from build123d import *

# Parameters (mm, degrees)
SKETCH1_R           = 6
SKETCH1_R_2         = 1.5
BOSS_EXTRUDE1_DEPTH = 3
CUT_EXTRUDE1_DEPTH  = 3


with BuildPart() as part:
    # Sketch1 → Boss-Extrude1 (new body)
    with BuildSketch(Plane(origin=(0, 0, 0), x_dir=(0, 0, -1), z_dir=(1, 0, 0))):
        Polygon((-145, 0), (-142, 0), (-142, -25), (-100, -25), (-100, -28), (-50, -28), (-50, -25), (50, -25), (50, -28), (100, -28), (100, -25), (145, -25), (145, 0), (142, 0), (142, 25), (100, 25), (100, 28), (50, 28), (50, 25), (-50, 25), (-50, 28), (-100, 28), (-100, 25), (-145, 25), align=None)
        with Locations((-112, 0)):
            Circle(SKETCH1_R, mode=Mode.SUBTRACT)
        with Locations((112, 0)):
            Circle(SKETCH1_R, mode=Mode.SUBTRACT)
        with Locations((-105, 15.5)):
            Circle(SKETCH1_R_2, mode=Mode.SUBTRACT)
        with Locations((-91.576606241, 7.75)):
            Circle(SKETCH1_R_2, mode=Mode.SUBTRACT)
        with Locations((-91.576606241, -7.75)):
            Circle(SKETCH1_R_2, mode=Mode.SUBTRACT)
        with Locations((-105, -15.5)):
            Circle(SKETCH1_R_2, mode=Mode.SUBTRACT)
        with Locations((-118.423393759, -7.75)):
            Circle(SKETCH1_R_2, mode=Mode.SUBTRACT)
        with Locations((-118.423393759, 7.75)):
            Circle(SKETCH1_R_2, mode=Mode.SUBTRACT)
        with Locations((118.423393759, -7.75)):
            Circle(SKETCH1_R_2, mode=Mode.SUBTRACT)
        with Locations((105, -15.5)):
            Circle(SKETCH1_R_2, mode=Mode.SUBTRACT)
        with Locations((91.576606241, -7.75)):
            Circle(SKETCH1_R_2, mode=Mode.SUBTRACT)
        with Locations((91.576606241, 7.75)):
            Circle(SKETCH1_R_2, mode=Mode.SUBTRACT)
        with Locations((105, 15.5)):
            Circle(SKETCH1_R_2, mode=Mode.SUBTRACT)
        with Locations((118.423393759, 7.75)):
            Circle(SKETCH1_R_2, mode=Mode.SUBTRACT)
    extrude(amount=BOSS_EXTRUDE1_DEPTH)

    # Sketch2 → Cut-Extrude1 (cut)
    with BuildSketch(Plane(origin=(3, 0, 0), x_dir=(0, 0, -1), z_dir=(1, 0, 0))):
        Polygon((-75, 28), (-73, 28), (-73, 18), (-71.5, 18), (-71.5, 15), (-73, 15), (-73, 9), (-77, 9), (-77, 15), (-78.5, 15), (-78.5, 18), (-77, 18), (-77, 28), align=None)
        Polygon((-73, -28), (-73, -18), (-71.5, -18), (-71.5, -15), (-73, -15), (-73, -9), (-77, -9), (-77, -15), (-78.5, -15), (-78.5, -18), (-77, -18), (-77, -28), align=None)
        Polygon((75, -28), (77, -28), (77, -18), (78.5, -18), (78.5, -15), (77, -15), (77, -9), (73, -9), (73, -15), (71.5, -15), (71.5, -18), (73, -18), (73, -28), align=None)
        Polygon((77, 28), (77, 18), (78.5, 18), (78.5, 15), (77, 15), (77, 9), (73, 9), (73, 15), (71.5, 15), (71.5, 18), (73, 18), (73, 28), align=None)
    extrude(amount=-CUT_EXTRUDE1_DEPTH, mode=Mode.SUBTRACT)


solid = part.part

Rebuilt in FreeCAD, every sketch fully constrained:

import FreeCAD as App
import Part
import Sketcher
from FreeCAD import Vector
Q = App.Units.Quantity


def add_polygon(sketch, points):
    """Adds a closed chain of lines whose ends are joined by coincident constraints."""
    first, n = sketch.GeometryCount, len(points)
    for a, b in zip(points, points[1:] + points[:1]):
        sketch.addGeometry(Part.LineSegment(App.Vector(*a, 0), App.Vector(*b, 0)), False)
    for i in range(n):
        sketch.addConstraint(Sketcher.Constraint("Coincident", first + i, 2, first + (i + 1) % n, 1))

doc = App.newDocument("Part")
body = doc.addObject("PartDesign::Body", "Body")

# Sketch on YZ plane
sketch1 = doc.addObject("Sketcher::SketchObject", "Sketch")
body.addObject(sketch1)
sketch1.AttachmentSupport = (doc.YZ_Plane, [""])
sketch1.MapMode = "FlatFace"
add_polygon(sketch1, [(0, 145), (0, 142), (-25, 142), (-25, 100), (-28, 100), (-28, 50), (-25, 50), (-25, -50), (-28, -50), (-28, -100), (-25, -100), (-25, -145), (0, -145), (0, -142), (25, -142), (25, -100), (28, -100), (28, -50), (25, -50), (25, 50), (28, 50), (28, 100), (25, 100), (25, 145)])  # lines 0-23
sketch1.addGeometry(Part.Circle(Vector(-15.5, 105, 0), Vector(0, 0, 1), 1.5), False)  # 24
sketch1.addGeometry(Part.Circle(Vector(-7.75, 118.423394, 0), Vector(0, 0, 1), 1.5), False)  # 25
sketch1.addGeometry(Part.Circle(Vector(-7.75, 91.576606, 0), Vector(0, 0, 1), 1.5), False)  # 26
sketch1.addGeometry(Part.Circle(Vector(-15.5, -105, 0), Vector(0, 0, 1), 1.5), False)  # 27
sketch1.addGeometry(Part.Circle(Vector(-7.75, -91.576606, 0), Vector(0, 0, 1), 1.5), False)  # 28
sketch1.addGeometry(Part.Circle(Vector(-7.75, -118.423394, 0), Vector(0, 0, 1), 1.5), False)  # 29
sketch1.addGeometry(Part.Circle(Vector(0, 112, 0), Vector(0, 0, 1), 6), False)  # 30
sketch1.addGeometry(Part.Circle(Vector(7.75, 118.423394, 0), Vector(0, 0, 1), 1.5), False)  # 31
sketch1.addGeometry(Part.Circle(Vector(7.75, 91.576606, 0), Vector(0, 0, 1), 1.5), False)  # 32
sketch1.addGeometry(Part.Circle(Vector(15.5, 105, 0), Vector(0, 0, 1), 1.5), False)  # 33
sketch1.addGeometry(Part.Circle(Vector(0, -112, 0), Vector(0, 0, 1), 6), False)  # 34
sketch1.addGeometry(Part.Circle(Vector(7.75, -91.576606, 0), Vector(0, 0, 1), 1.5), False)  # 35
sketch1.addGeometry(Part.Circle(Vector(7.75, -118.423394, 0), Vector(0, 0, 1), 1.5), False)  # 36
sketch1.addGeometry(Part.Circle(Vector(15.5, -105, 0), Vector(0, 0, 1), 1.5), False)  # 37
sketch1.addConstraint([
    Sketcher.Constraint("Vertical", 0),
    Sketcher.Constraint("Horizontal", 1),
    Sketcher.Constraint("Vertical", 2),
    Sketcher.Constraint("Horizontal", 3),
    Sketcher.Constraint("Vertical", 4),
    Sketcher.Constraint("Horizontal", 5),
    Sketcher.Constraint("Vertical", 6),
    Sketcher.Constraint("Horizontal", 7),
    Sketcher.Constraint("Vertical", 8),
    Sketcher.Constraint("Horizontal", 9),
    Sketcher.Constraint("Vertical", 10),
    Sketcher.Constraint("Horizontal", 11),
    Sketcher.Constraint("Vertical", 12),
    Sketcher.Constraint("Horizontal", 13),
    Sketcher.Constraint("Vertical", 14),
    Sketcher.Constraint("Horizontal", 15),
    Sketcher.Constraint("Vertical", 16),
    Sketcher.Constraint("Horizontal", 17),
    Sketcher.Constraint("Vertical", 18),
    Sketcher.Constraint("Horizontal", 19),
    Sketcher.Constraint("Vertical", 20),
    Sketcher.Constraint("Horizontal", 21),
    Sketcher.Constraint("Vertical", 22),
    Sketcher.Constraint("Horizontal", 23),
    Sketcher.Constraint("Equal", 24, 25),
    Sketcher.Constraint("Equal", 25, 26),
    Sketcher.Constraint("Equal", 26, 27),
    Sketcher.Constraint("Equal", 27, 28),
    Sketcher.Constraint("Equal", 28, 29),
    Sketcher.Constraint("Equal", 29, 31),
    Sketcher.Constraint("Equal", 31, 32),
    Sketcher.Constraint("Equal", 32, 33),
    Sketcher.Constraint("Equal", 30, 34),
    Sketcher.Constraint("Equal", 33, 35),
    Sketcher.Constraint("Equal", 35, 36),
    Sketcher.Constraint("Equal", 36, 37),
    Sketcher.Constraint("Symmetric", 29, 3, 31, 3, -1, 1),
    Sketcher.Constraint("Symmetric", 28, 3, 32, 3, -1, 1),
    Sketcher.Constraint("Symmetric", 27, 3, 33, 3, -1, 1),
    Sketcher.Constraint("Symmetric", 30, 3, 34, 3, -1, 1),
    Sketcher.Constraint("Symmetric", 26, 3, 35, 3, -1, 1),
    Sketcher.Constraint("Symmetric", 25, 3, 36, 3, -1, 1),
    Sketcher.Constraint("Symmetric", 24, 3, 37, 3, -1, 1),
    Sketcher.Constraint("Symmetric", 0, 2, 12, 2, -1, 1),
    Sketcher.Constraint("Symmetric", 2, 2, 14, 2, -1, 1),
    Sketcher.Constraint("Symmetric", 4, 2, 16, 2, -1, 1),
    Sketcher.Constraint("Symmetric", 6, 2, 18, 2, -1, 1),
    Sketcher.Constraint("Symmetric", 8, 2, 20, 2, -1, 1),
    Sketcher.Constraint("Symmetric", 10, 2, 22, 2, -1, 1),
    Sketcher.Constraint("Symmetric", 25, 3, 31, 3, -2),
    Sketcher.Constraint("Symmetric", 26, 3, 32, 3, -2),
    Sketcher.Constraint("Symmetric", 24, 3, 33, 3, -2),
    Sketcher.Constraint("Symmetric", 9, 2, 14, 2, -2),
    Sketcher.Constraint("Symmetric", 7, 2, 16, 2, -2),
    Sketcher.Constraint("PointOnObject", 30, 3, -2),
    Sketcher.Constraint("PointOnObject", 0, 2, -2),
    Sketcher.Constraint("Vertical", 25, 3, 26, 3),
    Sketcher.Constraint("Vertical", 2, 2, 5, 2),
    Sketcher.Constraint("Equal", 21, 0),
    Sketcher.Constraint("Diameter", 24, Q("3 mm")),
    Sketcher.Constraint("Diameter", 30, Q("12 mm")),
    Sketcher.Constraint("DistanceX", 1, 2, 1, 1, Q("25 mm")),
    Sketcher.Constraint("DistanceX", 3, 2, 3, 1, Q("3 mm")),
    Sketcher.Constraint("DistanceY", 2, 2, 2, 1, Q("42 mm")),
    Sketcher.Constraint("DistanceY", 4, 2, 4, 1, Q("50 mm")),
    Sketcher.Constraint("DistanceY", 6, 2, 6, 1, Q("100 mm")),
    Sketcher.Constraint("DistanceY", -1, 1, 24, 3, Q("105 mm")),
    Sketcher.Constraint("DistanceY", -1, 1, 30, 3, Q("112 mm")),
    Sketcher.Constraint("DistanceY", 28, 3, 25, 3, Q("210 mm")),
    Sketcher.Constraint("DistanceX", 24, 3, -1, 1, Q("15.5 mm")),
    Sketcher.Constraint("DistanceX", 25, 3, 31, 3, Q("15.5 mm")),
    Sketcher.Constraint("DistanceY", -1, 1, 25, 3, Q("118.423394 mm")),
])
pad1 = doc.addObject("PartDesign::Pad", "Pad")
body.addObject(pad1)
pad1.Profile = sketch1
pad1.Length = 3

# Sketch on YZ plane
sketch2 = doc.addObject("Sketcher::SketchObject", "Sketch001")
body.addObject(sketch2)
sketch2.AttachmentSupport = (doc.YZ_Plane, [""])
sketch2.MapMode = "FlatFace"
sketch2.AttachmentOffset = App.Placement(Vector(0, 0, 3), App.Rotation())
add_polygon(sketch2, [(28, 73), (28, 77), (18, 77), (18, 78.5), (15, 78.5), (15, 77), (9, 77), (9, 73), (15, 73), (15, 71.5), (18, 71.5), (18, 73)])  # lines 0-11
add_polygon(sketch2, [(-28, 73), (-18, 73), (-18, 71.5), (-15, 71.5), (-15, 73), (-9, 73), (-9, 77), (-15, 77), (-15, 78.5), (-18, 78.5), (-18, 77), (-28, 77)])  # lines 12-23
add_polygon(sketch2, [(-28, -77), (-18, -77), (-18, -78.5), (-15, -78.5), (-15, -77), (-9, -77), (-9, -73), (-15, -73), (-15, -71.5), (-18, -71.5), (-18, -73), (-28, -73)])  # lines 24-35
add_polygon(sketch2, [(18, -77), (28, -77), (28, -73), (18, -73), (18, -71.5), (15, -71.5), (15, -73), (9, -73), (9, -77), (15, -77), (15, -78.5), (18, -78.5)])  # lines 36-47
sketch2.addConstraint([
    Sketcher.Constraint("Vertical", 0),
    Sketcher.Constraint("Horizontal", 1),
    Sketcher.Constraint("Vertical", 2),
    Sketcher.Constraint("Horizontal", 3),
    Sketcher.Constraint("Vertical", 4),
    Sketcher.Constraint("Horizontal", 5),
    Sketcher.Constraint("Vertical", 6),
    Sketcher.Constraint("Horizontal", 7),
    Sketcher.Constraint("Vertical", 8),
    Sketcher.Constraint("Horizontal", 9),
    Sketcher.Constraint("Vertical", 10),
    Sketcher.Constraint("Horizontal", 11),
    Sketcher.Constraint("Horizontal", 12),
    Sketcher.Constraint("Vertical", 13),
    Sketcher.Constraint("Horizontal", 14),
    Sketcher.Constraint("Vertical", 15),
    Sketcher.Constraint("Horizontal", 16),
    Sketcher.Constraint("Vertical", 17),
    Sketcher.Constraint("Horizontal", 18),
    Sketcher.Constraint("Vertical", 19),
    Sketcher.Constraint("Horizontal", 20),
    Sketcher.Constraint("Vertical", 21),
    Sketcher.Constraint("Horizontal", 22),
    Sketcher.Constraint("Vertical", 23),
    Sketcher.Constraint("Horizontal", 24),
    Sketcher.Constraint("Vertical", 25),
    Sketcher.Constraint("Horizontal", 26),
    Sketcher.Constraint("Vertical", 27),
    Sketcher.Constraint("Horizontal", 28),
    Sketcher.Constraint("Vertical", 29),
    Sketcher.Constraint("Horizontal", 30),
    Sketcher.Constraint("Vertical", 31),
    Sketcher.Constraint("Horizontal", 32),
    Sketcher.Constraint("Vertical", 33),
    Sketcher.Constraint("Horizontal", 34),
    Sketcher.Constraint("Vertical", 35),
    Sketcher.Constraint("Horizontal", 36),
    Sketcher.Constraint("Vertical", 37),
    Sketcher.Constraint("Horizontal", 38),
    Sketcher.Constraint("Vertical", 39),
    Sketcher.Constraint("Horizontal", 40),
    Sketcher.Constraint("Vertical", 41),
    Sketcher.Constraint("Horizontal", 42),
    Sketcher.Constraint("Vertical", 43),
    Sketcher.Constraint("Horizontal", 44),
    Sketcher.Constraint("Vertical", 45),
    Sketcher.Constraint("Horizontal", 46),
    Sketcher.Constraint("Vertical", 47),
    Sketcher.Constraint("Symmetric", 1, 2, 24, 2, -1, 1),
    Sketcher.Constraint("Symmetric", 3, 2, 26, 2, -1, 1),
    Sketcher.Constraint("Symmetric", 5, 2, 28, 2, -1, 1),
    Sketcher.Constraint("Symmetric", 7, 2, 30, 2, -1, 1),
    Sketcher.Constraint("Symmetric", 9, 2, 32, 2, -1, 1),
    Sketcher.Constraint("Symmetric", 11, 2, 34, 2, -1, 1),
    Sketcher.Constraint("Symmetric", 22, 2, 36, 2, -1, 1),
    Sketcher.Constraint("Symmetric", 12, 2, 38, 2, -1, 1),
    Sketcher.Constraint("Symmetric", 14, 2, 40, 2, -1, 1),
    Sketcher.Constraint("Symmetric", 16, 2, 42, 2, -1, 1),
    Sketcher.Constraint("Symmetric", 18, 2, 44, 2, -1, 1),
    Sketcher.Constraint("Symmetric", 20, 2, 46, 2, -1, 1),
    Sketcher.Constraint("Symmetric", 10, 2, 12, 2, -2),
    Sketcher.Constraint("Symmetric", 8, 2, 14, 2, -2),
    Sketcher.Constraint("Symmetric", 6, 2, 16, 2, -2),
    Sketcher.Constraint("Symmetric", 4, 2, 18, 2, -2),
    Sketcher.Constraint("Symmetric", 2, 2, 20, 2, -2),
    Sketcher.Constraint("Symmetric", 0, 2, 22, 2, -2),
    Sketcher.Constraint("Horizontal", 1, 2, 4, 2),
    Sketcher.Constraint("Horizontal", 7, 2, 10, 2),
    Sketcher.Constraint("Vertical", 4, 2, 7, 2),
    Sketcher.Constraint("Vertical", 2, 2, 9, 2),
    Sketcher.Constraint("Equal", 4, 8),
    Sketcher.Constraint("DistanceX", 1, 2, 1, 1, Q("10 mm")),
    Sketcher.Constraint("DistanceX", 3, 2, 3, 1, Q("3 mm")),
    Sketcher.Constraint("DistanceX", 5, 2, 5, 1, Q("6 mm")),
    Sketcher.Constraint("DistanceY", 0, 1, 0, 2, Q("4 mm")),
    Sketcher.Constraint("DistanceY", 2, 1, 2, 2, Q("1.5 mm")),
    Sketcher.Constraint("DistanceX", -1, 1, 0, 2, Q("28 mm")),
    Sketcher.Constraint("DistanceY", -1, 1, 0, 2, Q("77 mm")),
])
pocket1 = doc.addObject("PartDesign::Pocket", "Pocket")
body.addObject(pocket1)
pocket1.Profile = sketch2
pocket1.Length = 3

doc.recompute()
